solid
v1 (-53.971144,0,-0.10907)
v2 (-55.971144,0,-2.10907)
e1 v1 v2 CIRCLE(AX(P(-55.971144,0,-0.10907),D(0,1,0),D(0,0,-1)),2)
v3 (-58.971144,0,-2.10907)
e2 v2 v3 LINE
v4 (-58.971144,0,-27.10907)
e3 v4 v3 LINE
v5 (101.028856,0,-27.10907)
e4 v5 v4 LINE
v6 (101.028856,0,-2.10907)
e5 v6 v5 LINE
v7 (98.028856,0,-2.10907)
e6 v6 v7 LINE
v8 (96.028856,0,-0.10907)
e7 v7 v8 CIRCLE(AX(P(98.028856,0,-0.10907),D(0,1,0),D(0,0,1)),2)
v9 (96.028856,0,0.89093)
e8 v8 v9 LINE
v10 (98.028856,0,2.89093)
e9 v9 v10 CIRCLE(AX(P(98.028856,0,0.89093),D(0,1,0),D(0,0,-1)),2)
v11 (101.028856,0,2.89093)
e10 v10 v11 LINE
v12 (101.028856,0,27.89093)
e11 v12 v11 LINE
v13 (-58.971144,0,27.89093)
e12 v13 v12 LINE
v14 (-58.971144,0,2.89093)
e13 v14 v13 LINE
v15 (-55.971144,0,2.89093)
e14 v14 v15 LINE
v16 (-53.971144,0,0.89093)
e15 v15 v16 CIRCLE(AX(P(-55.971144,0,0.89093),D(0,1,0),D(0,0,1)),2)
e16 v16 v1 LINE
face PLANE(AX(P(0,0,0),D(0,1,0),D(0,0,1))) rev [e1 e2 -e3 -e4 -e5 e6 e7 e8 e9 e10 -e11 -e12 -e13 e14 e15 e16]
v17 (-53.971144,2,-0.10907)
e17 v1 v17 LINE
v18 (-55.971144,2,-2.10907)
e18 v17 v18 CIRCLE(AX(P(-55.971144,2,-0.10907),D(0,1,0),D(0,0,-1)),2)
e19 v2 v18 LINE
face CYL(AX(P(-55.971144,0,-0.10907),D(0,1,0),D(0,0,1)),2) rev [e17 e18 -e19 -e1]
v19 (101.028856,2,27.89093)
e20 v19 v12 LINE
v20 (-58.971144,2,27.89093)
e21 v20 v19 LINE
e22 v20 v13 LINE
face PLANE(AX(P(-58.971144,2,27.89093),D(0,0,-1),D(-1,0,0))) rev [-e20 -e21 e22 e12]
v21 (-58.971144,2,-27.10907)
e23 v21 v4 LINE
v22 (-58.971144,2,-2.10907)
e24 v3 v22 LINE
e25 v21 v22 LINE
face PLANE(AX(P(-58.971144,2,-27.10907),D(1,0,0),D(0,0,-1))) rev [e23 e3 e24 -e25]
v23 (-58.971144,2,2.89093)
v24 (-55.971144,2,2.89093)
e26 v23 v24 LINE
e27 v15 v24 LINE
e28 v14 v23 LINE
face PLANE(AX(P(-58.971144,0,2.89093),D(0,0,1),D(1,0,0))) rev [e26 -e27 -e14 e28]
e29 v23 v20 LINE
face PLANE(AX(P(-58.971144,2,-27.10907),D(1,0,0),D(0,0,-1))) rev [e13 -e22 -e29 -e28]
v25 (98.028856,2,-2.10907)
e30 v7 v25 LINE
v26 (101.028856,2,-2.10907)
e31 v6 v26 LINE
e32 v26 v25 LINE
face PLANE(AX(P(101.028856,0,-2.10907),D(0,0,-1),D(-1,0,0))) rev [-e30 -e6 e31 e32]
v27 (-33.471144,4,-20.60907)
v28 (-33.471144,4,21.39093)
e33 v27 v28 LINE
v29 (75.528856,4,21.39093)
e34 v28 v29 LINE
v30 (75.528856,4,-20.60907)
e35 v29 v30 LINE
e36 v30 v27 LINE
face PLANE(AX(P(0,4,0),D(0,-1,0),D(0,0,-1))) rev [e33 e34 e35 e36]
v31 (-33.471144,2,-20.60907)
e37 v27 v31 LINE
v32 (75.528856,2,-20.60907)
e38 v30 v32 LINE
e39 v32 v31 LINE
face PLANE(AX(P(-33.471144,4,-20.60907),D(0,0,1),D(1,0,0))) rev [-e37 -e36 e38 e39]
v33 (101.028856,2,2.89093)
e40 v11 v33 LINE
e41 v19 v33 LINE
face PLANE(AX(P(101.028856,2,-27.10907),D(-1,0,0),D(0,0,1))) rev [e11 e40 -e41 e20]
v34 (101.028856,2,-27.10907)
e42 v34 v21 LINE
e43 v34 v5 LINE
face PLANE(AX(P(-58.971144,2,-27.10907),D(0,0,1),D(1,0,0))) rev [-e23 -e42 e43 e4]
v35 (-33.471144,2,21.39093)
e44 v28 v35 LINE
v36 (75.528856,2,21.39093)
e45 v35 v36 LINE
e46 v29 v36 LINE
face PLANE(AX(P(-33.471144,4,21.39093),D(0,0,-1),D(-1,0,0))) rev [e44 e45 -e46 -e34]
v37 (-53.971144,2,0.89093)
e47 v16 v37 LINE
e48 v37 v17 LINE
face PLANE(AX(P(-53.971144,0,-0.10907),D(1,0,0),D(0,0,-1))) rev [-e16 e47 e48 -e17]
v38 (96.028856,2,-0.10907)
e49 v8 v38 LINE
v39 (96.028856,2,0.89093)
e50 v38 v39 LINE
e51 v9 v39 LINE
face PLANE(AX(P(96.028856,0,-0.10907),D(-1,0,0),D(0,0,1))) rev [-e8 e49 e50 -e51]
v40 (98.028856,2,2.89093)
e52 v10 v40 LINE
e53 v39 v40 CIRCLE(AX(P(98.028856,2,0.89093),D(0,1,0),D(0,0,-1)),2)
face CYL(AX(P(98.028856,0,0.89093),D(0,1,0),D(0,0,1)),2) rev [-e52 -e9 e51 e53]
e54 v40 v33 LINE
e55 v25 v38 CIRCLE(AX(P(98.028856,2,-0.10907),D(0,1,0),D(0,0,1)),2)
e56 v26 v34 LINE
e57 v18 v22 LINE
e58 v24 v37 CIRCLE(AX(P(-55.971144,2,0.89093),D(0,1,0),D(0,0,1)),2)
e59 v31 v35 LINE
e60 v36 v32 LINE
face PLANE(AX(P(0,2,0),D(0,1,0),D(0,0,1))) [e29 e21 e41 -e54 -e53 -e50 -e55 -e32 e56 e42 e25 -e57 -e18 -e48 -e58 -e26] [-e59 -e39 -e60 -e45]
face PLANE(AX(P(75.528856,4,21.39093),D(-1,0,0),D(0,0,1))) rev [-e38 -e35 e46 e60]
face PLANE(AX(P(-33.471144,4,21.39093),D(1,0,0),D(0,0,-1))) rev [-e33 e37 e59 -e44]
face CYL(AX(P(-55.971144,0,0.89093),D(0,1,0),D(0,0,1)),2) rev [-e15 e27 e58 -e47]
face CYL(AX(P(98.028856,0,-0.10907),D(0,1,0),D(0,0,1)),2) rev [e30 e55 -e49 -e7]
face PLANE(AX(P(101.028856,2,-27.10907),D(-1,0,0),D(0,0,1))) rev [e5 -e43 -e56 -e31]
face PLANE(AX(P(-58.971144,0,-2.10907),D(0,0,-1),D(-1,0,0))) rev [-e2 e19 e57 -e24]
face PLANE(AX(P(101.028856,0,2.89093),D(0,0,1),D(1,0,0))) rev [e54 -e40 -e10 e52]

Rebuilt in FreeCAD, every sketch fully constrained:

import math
import FreeCAD as App
import Part
import Sketcher

V = App.Vector
Q = App.Units.Quantity


def add_polygon(sketch, points):
    """Adds a closed chain of lines whose ends are joined by coincident constraints."""
    first, n = sketch.GeometryCount, len(points)
    for a, b in zip(points, points[1:] + points[:1]):
        sketch.addGeometry(Part.LineSegment(App.Vector(*a, 0), App.Vector(*b, 0)), False)
    for i in range(n):
        sketch.addConstraint(Sketcher.Constraint("Coincident", first + i, 2, first + (i + 1) % n, 1))

doc = App.newDocument("Part")
body = doc.addObject("PartDesign::Body", "Body")

# Sketch on XZ plane
sketch1 = body.newObject("Sketcher::SketchObject", "Sketch")
sketch1.AttachmentSupport = (doc.getObject("XZ_Plane"), [""])
sketch1.MapMode = "FlatFace"
add_polygon(sketch1, [(-59, -27), (-59, 28), (101, 28), (101, -27)])  # lines 0-3
sketch1.addConstraint([
    Sketcher.Constraint("Vertical", 0),
    Sketcher.Constraint("Horizontal", 1),
    Sketcher.Constraint("Vertical", 2),
    Sketcher.Constraint("Horizontal", 3),
    Sketcher.Constraint("DistanceX", 1, 1, 1, 2, Q("160 mm")),
    Sketcher.Constraint("DistanceY", 0, 1, 0, 2, Q("55 mm")),
    Sketcher.Constraint("DistanceY", -1, 1, 0, 2, Q("27.89093 mm")),
    Sketcher.Constraint("DistanceX", 0, 2, -1, 1, Q("58.971144 mm")),
])
pad1 = body.newObject("PartDesign::Pad", "Pad")
pad1.Profile = sketch1
pad1.Length = 2
pad1.Reversed = True

# Sketch on XZ plane
sketch2 = body.newObject("Sketcher::SketchObject", "Sketch001")
sketch2.AttachmentSupport = (doc.getObject("XZ_Plane"), [""])
sketch2.MapMode = "FlatFace"
sketch2.AttachmentOffset = App.Placement(V(0, 0, -2), App.Rotation())
add_polygon(sketch2, [(-33, -21), (-33, 21), (76, 21), (76, -21)])  # lines 0-3
sketch2.addConstraint([
    Sketcher.Constraint("Vertical", 0),
    Sketcher.Constraint("Horizontal", 1),
    Sketcher.Constraint("Vertical", 2),
    Sketcher.Constraint("Horizontal", 3),
    Sketcher.Constraint("DistanceX", 1, 1, 1, 2, Q("109 mm")),
    Sketcher.Constraint("DistanceY", 0, 1, 0, 2, Q("42 mm")),
    Sketcher.Constraint("DistanceY", -1, 1, 0, 2, Q("21.39093 mm")),
    Sketcher.Constraint("DistanceX", 0, 2, -1, 1, Q("33.471144 mm")),
])
pad2 = body.newObject("PartDesign::Pad", "Pad001")
pad2.Profile = sketch2
pad2.Length = 2
pad2.Reversed = True

# Sketch on XZ plane
sketch3 = body.newObject("Sketcher::SketchObject", "Sketch002")
sketch3.AttachmentSupport = (doc.getObject("XZ_Plane"), [""])
sketch3.MapMode = "FlatFace"
sketch3.AttachmentOffset = App.Placement(V(0, 0, -2), App.Rotation())
sketch3.addGeometry([
    Part.LineSegment(V(-56, -2.1, 0), V(-59, -2.1, 0)),  # 0
    Part.LineSegment(V(-59, -2.1, 0), V(-59, 2.9, 0)),  # 1
    Part.LineSegment(V(-59, 2.9, 0), V(-56, 2.9, 0)),  # 2
    Part.ArcOfCircle(Part.Circle(V(-56, 0.9, 0), V(0, 0, 1), 2), math.radians(0), math.radians(90)),  # 3
    Part.LineSegment(V(-54, 0.9, 0), V(-54, -0.1, 0)),  # 4
    Part.ArcOfCircle(Part.Circle(V(-56, -0.1, 0), V(0, 0, 1), 2), math.radians(-90), math.radians(0)),  # 5
    Part.LineSegment(V(101, -2.1, 0), V(98, -2.1, 0)),  # 6
    Part.ArcOfCircle(Part.Circle(V(98, -0.1, 0), V(0, 0, 1), 2), math.radians(180), math.radians(270)),  # 7
    Part.LineSegment(V(96, -0.1, 0), V(96, 0.9, 0)),  # 8
    Part.ArcOfCircle(Part.Circle(V(98, 0.9, 0), V(0, 0, 1), 2), math.radians(90), math.radians(180)),  # 9
    Part.LineSegment(V(98, 2.9, 0), V(101, 2.9, 0)),  # 10
    Part.LineSegment(V(101, 2.9, 0), V(101, -2.1, 0)),  # 11
], False)
sketch3.addConstraint([
    Sketcher.Constraint("Coincident", 0, 2, 1, 1),
    Sketcher.Constraint("Coincident", 1, 2, 2, 1),
    Sketcher.Constraint("Tangent", 2, 2, 3, 2),
    Sketcher.Constraint("Tangent", 3, 1, 4, 1),
    Sketcher.Constraint("Tangent", 4, 2, 5, 2),
    Sketcher.Constraint("Tangent", 5, 1, 0, 1),
    Sketcher.Constraint("Tangent", 6, 2, 7, 2),
    Sketcher.Constraint("Tangent", 7, 1, 8, 1),
    Sketcher.Constraint("Tangent", 8, 2, 9, 2),
    Sketcher.Constraint("Tangent", 9, 1, 10, 1),
    Sketcher.Constraint("Coincident", 10, 2, 11, 1),
    Sketcher.Constraint("Coincident", 11, 2, 6, 1),
    Sketcher.Constraint("Horizontal", 0),
    Sketcher.Constraint("Vertical", 1),
    Sketcher.Constraint("Horizontal", 2),
    Sketcher.Constraint("Vertical", 4),
    Sketcher.Constraint("Horizontal", 6),
    Sketcher.Constraint("Vertical", 8),
    Sketcher.Constraint("Horizontal", 10),
    Sketcher.Constraint("Vertical", 11),
    Sketcher.Constraint("Equal", 3, 5),
    Sketcher.Constraint("Equal", 5, 7),
    Sketcher.Constraint("Equal", 7, 9),
    Sketcher.Constraint("Horizontal", 5, 3, 7, 3),
    Sketcher.Constraint("Horizontal", 3, 3, 9, 3),
    Sketcher.Constraint("Equal", 2, 6),
    Sketcher.Constraint("Radius", 3, Q("2 mm")),
    Sketcher.Constraint("DistanceX", 0, 2, 0, 1, Q("3 mm")),
    Sketcher.Constraint("DistanceY", 1, 1, 1, 2, Q("5 mm")),
    Sketcher.Constraint("DistanceX", 5, 3, 7, 3, Q("154 mm")),
    Sketcher.Constraint("DistanceY", -1, 1, 3, 3, Q("0.89093 mm")),
    Sketcher.Constraint("DistanceX", 3, 3, -1, 1, Q("55.971144 mm")),
])
pocket1 = body.newObject("PartDesign::Pocket", "Pocket")
pocket1.Profile = sketch3
pocket1.Length = 2
pocket1.Reversed = True

doc.recompute()
